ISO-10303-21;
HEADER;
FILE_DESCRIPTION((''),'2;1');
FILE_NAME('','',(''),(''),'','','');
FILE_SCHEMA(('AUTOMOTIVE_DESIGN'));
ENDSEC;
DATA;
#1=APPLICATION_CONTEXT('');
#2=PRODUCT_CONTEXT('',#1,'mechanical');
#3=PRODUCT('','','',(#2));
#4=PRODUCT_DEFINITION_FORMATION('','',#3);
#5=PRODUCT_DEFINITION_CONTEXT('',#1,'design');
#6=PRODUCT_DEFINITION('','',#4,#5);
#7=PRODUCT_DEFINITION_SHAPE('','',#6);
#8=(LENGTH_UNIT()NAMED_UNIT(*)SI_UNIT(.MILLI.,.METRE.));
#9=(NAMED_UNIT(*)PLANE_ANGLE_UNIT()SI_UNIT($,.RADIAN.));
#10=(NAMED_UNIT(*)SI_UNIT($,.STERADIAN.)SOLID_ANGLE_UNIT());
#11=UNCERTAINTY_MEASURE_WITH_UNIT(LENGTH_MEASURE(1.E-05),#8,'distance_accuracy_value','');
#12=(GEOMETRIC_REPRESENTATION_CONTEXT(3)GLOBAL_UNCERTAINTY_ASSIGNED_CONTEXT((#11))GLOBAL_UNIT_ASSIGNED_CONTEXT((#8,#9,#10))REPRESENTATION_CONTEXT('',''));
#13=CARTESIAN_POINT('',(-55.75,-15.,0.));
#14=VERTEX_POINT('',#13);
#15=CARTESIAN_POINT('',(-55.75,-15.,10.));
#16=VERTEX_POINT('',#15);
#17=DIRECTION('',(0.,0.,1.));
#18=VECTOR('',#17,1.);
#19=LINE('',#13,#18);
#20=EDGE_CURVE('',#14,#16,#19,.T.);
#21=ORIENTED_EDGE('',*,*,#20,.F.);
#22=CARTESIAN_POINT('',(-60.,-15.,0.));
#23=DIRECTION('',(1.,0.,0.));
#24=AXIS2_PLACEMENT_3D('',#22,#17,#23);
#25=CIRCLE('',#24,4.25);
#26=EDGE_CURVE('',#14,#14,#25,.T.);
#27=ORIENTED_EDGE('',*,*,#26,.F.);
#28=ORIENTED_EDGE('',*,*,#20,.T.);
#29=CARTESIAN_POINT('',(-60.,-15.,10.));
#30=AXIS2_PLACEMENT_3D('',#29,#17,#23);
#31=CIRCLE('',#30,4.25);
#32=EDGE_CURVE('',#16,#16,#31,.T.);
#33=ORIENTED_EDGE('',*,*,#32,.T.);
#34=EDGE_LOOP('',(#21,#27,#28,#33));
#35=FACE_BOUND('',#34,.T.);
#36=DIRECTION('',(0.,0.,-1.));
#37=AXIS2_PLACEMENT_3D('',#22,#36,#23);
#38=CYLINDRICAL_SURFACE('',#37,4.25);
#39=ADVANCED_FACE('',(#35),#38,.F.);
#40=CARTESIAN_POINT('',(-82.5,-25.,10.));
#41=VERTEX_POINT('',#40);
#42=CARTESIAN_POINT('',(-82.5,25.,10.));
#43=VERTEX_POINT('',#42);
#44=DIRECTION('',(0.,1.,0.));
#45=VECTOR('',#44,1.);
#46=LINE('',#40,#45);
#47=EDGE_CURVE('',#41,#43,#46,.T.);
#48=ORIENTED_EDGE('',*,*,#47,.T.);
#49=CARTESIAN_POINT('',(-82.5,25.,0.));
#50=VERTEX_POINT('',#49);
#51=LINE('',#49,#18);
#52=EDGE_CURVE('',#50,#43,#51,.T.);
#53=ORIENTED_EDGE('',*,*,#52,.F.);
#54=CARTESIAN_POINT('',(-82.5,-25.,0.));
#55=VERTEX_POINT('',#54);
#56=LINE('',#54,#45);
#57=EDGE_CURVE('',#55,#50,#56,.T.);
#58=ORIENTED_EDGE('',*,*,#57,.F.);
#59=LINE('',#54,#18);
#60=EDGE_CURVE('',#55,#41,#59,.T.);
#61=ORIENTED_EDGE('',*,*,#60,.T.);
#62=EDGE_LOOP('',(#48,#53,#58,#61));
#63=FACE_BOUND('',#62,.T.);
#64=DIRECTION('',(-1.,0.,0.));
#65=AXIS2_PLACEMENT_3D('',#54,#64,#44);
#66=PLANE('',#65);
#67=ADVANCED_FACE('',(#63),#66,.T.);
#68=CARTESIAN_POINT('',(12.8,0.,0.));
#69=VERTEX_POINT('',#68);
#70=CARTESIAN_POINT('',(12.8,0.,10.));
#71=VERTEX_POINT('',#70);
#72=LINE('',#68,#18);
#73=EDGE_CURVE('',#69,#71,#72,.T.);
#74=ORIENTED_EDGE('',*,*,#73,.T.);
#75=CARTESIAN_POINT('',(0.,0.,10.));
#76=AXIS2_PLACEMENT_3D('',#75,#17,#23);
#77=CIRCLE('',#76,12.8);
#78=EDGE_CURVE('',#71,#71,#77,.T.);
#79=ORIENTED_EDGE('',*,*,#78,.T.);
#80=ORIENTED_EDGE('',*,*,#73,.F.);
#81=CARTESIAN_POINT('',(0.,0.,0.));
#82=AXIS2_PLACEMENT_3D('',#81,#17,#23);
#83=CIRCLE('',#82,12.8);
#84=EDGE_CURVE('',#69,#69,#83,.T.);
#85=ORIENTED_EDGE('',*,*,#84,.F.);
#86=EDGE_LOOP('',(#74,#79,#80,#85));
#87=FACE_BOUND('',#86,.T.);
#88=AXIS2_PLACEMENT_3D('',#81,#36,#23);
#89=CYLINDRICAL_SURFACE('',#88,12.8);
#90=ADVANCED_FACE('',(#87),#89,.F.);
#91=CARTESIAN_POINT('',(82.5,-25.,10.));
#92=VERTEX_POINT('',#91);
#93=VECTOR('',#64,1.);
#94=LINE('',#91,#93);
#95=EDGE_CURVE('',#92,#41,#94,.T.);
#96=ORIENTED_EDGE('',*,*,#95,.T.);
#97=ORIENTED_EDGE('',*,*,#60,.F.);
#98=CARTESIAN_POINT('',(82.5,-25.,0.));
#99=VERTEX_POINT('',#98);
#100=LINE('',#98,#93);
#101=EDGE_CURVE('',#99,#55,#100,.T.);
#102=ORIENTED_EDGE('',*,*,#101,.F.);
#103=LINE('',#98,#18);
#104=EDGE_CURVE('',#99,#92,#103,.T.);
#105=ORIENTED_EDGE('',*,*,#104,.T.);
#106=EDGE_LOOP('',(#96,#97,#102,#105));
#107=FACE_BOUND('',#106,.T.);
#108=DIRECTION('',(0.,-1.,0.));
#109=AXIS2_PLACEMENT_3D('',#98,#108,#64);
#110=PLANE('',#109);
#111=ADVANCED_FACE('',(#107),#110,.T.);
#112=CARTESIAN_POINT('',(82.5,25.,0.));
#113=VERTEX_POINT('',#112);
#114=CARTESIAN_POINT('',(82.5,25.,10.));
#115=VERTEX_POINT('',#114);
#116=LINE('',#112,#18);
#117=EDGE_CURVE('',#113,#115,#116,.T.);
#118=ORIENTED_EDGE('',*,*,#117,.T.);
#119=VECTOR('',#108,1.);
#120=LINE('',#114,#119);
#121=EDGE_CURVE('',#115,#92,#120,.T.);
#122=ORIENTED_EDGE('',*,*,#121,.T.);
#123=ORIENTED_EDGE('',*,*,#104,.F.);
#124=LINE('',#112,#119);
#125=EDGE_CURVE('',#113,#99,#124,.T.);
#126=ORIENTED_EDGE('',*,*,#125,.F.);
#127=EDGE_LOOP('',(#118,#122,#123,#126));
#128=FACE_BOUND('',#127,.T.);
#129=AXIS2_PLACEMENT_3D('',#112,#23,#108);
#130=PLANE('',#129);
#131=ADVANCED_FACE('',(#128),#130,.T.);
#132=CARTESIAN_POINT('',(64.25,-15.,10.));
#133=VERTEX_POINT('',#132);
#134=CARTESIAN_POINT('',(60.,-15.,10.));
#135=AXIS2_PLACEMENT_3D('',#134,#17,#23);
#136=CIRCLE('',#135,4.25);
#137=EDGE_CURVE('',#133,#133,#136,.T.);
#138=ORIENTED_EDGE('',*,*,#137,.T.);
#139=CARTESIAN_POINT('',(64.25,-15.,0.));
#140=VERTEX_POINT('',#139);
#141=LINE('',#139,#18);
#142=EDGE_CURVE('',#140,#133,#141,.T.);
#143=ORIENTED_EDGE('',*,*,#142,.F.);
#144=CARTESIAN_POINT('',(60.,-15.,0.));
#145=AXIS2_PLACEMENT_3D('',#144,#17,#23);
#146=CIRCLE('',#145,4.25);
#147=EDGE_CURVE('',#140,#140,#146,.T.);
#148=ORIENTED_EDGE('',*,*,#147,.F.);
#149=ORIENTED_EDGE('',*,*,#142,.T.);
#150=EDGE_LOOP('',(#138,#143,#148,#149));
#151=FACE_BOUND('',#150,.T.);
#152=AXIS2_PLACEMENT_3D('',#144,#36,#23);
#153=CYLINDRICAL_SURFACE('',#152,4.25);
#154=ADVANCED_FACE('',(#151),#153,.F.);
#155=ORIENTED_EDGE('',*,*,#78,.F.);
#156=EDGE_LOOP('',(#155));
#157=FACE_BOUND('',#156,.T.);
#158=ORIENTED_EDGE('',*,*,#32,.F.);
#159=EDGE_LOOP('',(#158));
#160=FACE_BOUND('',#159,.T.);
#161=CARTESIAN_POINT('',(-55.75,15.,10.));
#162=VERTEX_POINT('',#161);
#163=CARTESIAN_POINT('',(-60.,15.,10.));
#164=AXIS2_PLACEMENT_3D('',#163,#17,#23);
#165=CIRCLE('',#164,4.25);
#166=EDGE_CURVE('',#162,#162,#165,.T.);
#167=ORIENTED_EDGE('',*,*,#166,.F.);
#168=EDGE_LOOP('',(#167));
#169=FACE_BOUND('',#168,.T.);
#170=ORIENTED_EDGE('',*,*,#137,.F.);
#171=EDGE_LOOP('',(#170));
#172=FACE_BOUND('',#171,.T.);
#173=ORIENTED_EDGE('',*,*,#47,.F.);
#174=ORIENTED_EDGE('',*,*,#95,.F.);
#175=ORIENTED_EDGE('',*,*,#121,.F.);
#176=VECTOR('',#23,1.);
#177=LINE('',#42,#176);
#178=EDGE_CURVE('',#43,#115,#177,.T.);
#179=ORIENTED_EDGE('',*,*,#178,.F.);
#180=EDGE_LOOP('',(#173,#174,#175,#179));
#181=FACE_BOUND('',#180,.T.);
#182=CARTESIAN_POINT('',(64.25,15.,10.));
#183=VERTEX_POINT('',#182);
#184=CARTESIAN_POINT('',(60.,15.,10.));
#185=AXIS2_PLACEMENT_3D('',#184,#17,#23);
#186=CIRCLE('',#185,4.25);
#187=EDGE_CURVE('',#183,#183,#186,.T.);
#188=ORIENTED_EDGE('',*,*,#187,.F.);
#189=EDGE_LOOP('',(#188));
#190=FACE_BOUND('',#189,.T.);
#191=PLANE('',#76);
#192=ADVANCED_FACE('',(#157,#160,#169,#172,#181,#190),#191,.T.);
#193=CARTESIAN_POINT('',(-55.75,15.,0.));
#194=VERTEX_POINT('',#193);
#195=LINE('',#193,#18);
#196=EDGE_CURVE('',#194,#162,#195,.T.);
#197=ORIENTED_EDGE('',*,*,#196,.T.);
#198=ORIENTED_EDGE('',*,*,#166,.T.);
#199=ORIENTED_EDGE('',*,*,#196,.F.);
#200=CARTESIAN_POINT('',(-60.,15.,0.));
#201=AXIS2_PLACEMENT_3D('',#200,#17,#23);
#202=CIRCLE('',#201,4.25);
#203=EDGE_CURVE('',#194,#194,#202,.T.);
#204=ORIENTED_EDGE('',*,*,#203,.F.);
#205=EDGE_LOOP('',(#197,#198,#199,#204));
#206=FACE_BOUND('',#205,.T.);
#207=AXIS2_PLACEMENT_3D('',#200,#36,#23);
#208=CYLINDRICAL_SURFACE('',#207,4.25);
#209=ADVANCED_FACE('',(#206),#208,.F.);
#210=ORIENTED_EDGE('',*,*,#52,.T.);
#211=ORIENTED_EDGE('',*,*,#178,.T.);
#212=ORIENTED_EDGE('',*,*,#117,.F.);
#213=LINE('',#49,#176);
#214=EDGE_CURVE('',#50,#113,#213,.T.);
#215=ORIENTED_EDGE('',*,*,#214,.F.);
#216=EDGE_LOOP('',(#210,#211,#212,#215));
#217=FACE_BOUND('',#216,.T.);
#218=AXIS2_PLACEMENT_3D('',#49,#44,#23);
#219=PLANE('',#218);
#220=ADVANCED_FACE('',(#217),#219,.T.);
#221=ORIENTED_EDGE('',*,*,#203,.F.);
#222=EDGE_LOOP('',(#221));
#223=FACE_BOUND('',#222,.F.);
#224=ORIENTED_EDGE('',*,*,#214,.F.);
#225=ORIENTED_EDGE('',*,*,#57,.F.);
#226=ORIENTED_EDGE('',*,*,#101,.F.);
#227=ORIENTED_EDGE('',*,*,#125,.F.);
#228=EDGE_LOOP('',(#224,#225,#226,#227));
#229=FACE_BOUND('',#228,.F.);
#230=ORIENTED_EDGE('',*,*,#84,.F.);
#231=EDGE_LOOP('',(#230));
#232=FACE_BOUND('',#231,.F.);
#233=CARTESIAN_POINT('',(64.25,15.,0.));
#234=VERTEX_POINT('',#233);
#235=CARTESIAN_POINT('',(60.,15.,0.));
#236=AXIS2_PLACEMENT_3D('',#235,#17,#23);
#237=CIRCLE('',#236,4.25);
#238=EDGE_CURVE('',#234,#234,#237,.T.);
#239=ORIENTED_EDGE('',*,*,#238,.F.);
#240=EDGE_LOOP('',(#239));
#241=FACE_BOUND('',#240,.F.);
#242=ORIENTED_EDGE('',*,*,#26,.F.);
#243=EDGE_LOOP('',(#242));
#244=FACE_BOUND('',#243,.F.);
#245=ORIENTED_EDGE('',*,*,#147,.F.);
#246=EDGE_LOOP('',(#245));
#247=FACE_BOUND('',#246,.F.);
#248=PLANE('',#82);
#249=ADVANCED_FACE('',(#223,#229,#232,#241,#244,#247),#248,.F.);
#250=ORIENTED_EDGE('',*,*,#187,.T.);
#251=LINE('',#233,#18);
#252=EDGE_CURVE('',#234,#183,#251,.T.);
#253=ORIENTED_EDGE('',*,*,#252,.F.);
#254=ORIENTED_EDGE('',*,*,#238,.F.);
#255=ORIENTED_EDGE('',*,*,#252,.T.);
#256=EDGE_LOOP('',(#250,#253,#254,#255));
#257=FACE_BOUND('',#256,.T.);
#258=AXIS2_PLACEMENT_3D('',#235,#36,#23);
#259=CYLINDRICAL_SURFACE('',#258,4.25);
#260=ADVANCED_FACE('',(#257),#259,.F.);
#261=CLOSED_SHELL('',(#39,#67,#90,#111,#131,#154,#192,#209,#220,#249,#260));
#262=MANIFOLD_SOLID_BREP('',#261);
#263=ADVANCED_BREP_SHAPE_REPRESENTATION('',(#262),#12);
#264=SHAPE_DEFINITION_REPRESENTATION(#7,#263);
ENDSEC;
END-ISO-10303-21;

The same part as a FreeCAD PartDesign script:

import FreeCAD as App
import Part
import Sketcher
from FreeCAD import Vector
Q = App.Units.Quantity


def add_polygon(sketch, points):
    """Adds a closed chain of lines whose ends are joined by coincident constraints."""
    first, n = sketch.GeometryCount, len(points)
    for a, b in zip(points, points[1:] + points[:1]):
        sketch.addGeometry(Part.LineSegment(App.Vector(*a, 0), App.Vector(*b, 0)), False)
    for i in range(n):
        sketch.addConstraint(Sketcher.Constraint("Coincident", first + i, 2, first + (i + 1) % n, 1))

doc = App.newDocument("Part")
body = doc.addObject("PartDesign::Body", "Body")

sketch1 = doc.addObject("Sketcher::SketchObject", "Sketch")
body.addObject(sketch1)
sketch1.AttachmentSupport = (doc.XY_Plane, [""])
sketch1.MapMode = "FlatFace"
add_polygon(sketch1, [(82.5, 25), (-82.5, 25), (-82.5, -25), (82.5, -25)])
sketch1.addGeometry(Part.Circle(Vector(-60, -15, 0), Vector(0, 0, 1), 4.2), False)
sketch1.addGeometry(Part.Circle(Vector(60, -15, 0), Vector(0, 0, 1), 4.2), False)
sketch1.addGeometry(Part.Circle(Vector(-60, 15, 0), Vector(0, 0, 1), 4.2), False)
sketch1.addGeometry(Part.Circle(Vector(0, 0, 0), Vector(0, 0, 1), 12.8), False)
sketch1.addGeometry(Part.Circle(Vector(60, 15, 0), Vector(0, 0, 1), 4.2), False)
sketch1.addConstraint([
    Sketcher.Constraint("Horizontal", 0),
    Sketcher.Constraint("Vertical", 1),
    Sketcher.Constraint("Horizontal", 2),
    Sketcher.Constraint("Vertical", 3),
    Sketcher.Constraint("Coincident", 7, 3, -1, 1),
    Sketcher.Constraint("Equal", 4, 5),
    Sketcher.Constraint("Equal", 5, 6),
    Sketcher.Constraint("Equal", 6, 8),
    Sketcher.Constraint("Symmetric", 5, 3, 6, 3, -1, 1),
    Sketcher.Constraint("Symmetric", 4, 3, 8, 3, -1, 1),
    Sketcher.Constraint("Symmetric", 0, 2, 2, 2, -1, 1),
    Sketcher.Constraint("Symmetric", 4, 3, 5, 3, -2),
    Sketcher.Constraint("Diameter", 4, Q("8.5 mm")),
    Sketcher.Constraint("Diameter", 7, Q("25.6 mm")),
    Sketcher.Constraint("DistanceX", 0, 2, 0, 1, Q("165 mm")),
    Sketcher.Constraint("DistanceY", 1, 2, 1, 1, Q("50 mm")),
    Sketcher.Constraint("DistanceY", 6, 3, 0, 2, Q("10 mm")),
    Sketcher.Constraint("DistanceX", 0, 2, 6, 3, Q("22.5 mm")),
])
pad1 = doc.addObject("PartDesign::Pad", "Pad")
body.addObject(pad1)
pad1.Profile = sketch1
pad1.Length = 10

doc.recompute()
